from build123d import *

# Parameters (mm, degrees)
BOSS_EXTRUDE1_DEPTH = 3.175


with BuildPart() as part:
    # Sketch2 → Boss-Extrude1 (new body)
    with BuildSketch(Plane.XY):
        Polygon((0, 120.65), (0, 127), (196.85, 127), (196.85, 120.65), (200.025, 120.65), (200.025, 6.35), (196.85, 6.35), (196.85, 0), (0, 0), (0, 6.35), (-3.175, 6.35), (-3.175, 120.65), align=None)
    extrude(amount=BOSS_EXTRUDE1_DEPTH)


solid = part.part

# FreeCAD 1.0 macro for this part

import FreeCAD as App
import Part
import Sketcher
from FreeCAD import Vector
Q = App.Units.Quantity


def add_polygon(sketch, points):
    """Adds a closed chain of lines whose ends are joined by coincident constraints."""
    first, n = sketch.GeometryCount, len(points)
    for a, b in zip(points, points[1:] + points[:1]):
        sketch.addGeometry(Part.LineSegment(App.Vector(*a, 0), App.Vector(*b, 0)), False)
    for i in range(n):
        sketch.addConstraint(Sketcher.Constraint("Coincident", first + i, 2, first + (i + 1) % n, 1))

doc = App.newDocument("Part")
body = doc.addObject("PartDesign::Body", "Body")

sketch1 = body.newObject("Sketcher::SketchObject", "Sketch")
sketch1.AttachmentSupport = (doc.getObject("XY_Plane"), [""])
sketch1.MapMode = "FlatFace"
add_polygon(sketch1, [(0, 127), (0, 120.7), (-3.2, 120.7), (-3.2, 6.3), (0, 6.3), (0, 0), (196.8, 0), (196.8, 6.3), (200, 6.3), (200, 120.7), (196.8, 120.7), (196.8, 127)])
sketch1.addConstraint([
    Sketcher.Constraint("Vertical", 0),
    Sketcher.Constraint("Horizontal", 1),
    Sketcher.Constraint("Vertical", 2),
    Sketcher.Constraint("Horizontal", 3),
    Sketcher.Constraint("Vertical", 4),
    Sketcher.Constraint("Horizontal", 5),
    Sketcher.Constraint("Vertical", 6),
    Sketcher.Constraint("Horizontal", 7),
    Sketcher.Constraint("Vertical", 8),
    Sketcher.Constraint("Horizontal", 9),
    Sketcher.Constraint("Vertical", 10),
    Sketcher.Constraint("Horizontal", 11),
    Sketcher.Constraint("Coincident", 4, 2, -1, 1),
    Sketcher.Constraint("PointOnObject", 0, 2, -2),
    Sketcher.Constraint("Horizontal", 3, 2, 6, 2),
    Sketcher.Constraint("Horizontal", 1, 2, 8, 2),
    Sketcher.Constraint("Vertical", 6, 2, 9, 2),
    Sketcher.Constraint("Equal", 3, 7),
    Sketcher.Constraint("Equal", 0, 4),
    Sketcher.Constraint("DistanceY", 2, 2, 2, 1, Q("4.5 in")),
    Sketcher.Constraint("DistanceY", -1, 1, 10, 2, Q("5 in")),
    Sketcher.Constraint("DistanceX", 2, 2, 7, 2, Q("8 in")),
    Sketcher.Constraint("DistanceX", 5, 1, 5, 2, Q("7.75 in")),
])
pad1 = body.newObject("PartDesign::Pad", "Pad")
pad1.Profile = sketch1
pad1.Length = Q("0.125 in")

doc.recompute()
